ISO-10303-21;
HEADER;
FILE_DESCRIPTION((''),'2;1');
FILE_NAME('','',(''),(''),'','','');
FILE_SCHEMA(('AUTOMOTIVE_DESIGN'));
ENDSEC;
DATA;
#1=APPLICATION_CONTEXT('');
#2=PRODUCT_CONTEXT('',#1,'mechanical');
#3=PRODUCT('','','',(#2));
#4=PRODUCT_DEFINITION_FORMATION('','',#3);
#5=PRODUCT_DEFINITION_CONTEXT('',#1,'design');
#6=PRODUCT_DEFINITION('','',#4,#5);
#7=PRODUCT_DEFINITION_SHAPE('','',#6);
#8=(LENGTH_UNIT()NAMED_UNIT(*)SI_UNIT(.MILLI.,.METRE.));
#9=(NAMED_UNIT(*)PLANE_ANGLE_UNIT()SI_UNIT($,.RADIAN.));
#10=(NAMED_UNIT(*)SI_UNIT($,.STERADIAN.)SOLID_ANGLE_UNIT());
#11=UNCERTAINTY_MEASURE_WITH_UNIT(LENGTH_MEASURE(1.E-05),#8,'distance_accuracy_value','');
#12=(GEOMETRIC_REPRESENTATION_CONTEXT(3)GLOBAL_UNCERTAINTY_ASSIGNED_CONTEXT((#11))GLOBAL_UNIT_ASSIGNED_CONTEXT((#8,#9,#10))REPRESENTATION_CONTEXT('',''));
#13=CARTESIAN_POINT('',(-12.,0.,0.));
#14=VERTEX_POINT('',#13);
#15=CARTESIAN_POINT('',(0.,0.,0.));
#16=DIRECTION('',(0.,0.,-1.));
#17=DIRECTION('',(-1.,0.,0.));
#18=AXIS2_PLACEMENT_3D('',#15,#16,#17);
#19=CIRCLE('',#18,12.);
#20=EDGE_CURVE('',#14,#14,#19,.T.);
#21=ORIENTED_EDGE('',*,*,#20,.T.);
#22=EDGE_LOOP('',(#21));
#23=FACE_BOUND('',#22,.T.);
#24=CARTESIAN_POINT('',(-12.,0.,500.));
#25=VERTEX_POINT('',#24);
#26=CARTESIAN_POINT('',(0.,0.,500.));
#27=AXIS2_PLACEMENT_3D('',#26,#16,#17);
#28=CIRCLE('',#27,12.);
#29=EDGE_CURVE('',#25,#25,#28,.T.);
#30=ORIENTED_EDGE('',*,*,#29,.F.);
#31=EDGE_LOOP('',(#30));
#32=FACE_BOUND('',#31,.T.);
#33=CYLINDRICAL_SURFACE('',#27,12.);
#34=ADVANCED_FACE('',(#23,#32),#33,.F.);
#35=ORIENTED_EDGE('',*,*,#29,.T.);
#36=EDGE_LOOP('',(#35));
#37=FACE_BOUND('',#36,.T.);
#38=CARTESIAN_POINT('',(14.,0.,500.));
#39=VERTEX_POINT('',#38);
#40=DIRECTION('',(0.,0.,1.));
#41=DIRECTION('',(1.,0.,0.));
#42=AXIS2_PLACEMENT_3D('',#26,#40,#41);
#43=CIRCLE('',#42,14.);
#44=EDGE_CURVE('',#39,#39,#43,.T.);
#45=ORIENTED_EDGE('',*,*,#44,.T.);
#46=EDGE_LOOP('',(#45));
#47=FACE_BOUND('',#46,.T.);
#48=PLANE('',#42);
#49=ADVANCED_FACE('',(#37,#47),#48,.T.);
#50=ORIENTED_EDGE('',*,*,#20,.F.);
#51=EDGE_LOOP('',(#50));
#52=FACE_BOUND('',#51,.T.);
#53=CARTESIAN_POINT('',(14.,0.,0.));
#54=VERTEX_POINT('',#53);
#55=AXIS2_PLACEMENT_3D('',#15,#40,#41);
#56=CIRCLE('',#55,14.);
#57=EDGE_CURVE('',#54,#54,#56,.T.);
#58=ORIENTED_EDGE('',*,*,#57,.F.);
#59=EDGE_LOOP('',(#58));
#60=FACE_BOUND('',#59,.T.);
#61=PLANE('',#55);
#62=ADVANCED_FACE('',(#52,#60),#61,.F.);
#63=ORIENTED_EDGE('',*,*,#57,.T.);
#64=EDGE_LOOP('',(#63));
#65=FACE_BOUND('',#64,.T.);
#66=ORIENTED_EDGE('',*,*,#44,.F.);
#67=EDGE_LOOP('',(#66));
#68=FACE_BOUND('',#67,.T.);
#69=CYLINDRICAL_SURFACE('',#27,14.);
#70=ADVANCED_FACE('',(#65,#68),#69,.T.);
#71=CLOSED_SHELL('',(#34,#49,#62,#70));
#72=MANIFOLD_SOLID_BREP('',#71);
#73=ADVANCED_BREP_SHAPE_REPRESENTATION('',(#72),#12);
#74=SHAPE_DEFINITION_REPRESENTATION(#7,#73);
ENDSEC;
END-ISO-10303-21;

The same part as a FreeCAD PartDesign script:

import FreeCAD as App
import Part
import Sketcher

doc = App.newDocument("Part")
body = doc.addObject("PartDesign::Body", "Body")

# Sketch on XY plane
sketch1 = body.newObject("Sketcher::SketchObject", "Sketch")
sketch1.AttachmentSupport = (doc.getObject("XY_Plane"), [""])
sketch1.MapMode = "FlatFace"
sketch1.addGeometry(Part.Circle(App.Vector(0, 0, 0), App.Vector(0, 0, 1), 14), False)
sketch1.addConstraint(Sketcher.Constraint("Coincident", 0, 3, -1, 1))
sketch1.addConstraint(Sketcher.Constraint("Diameter", 0, 28.0))
pad1 = body.newObject("PartDesign::Pad", "Pad")
pad1.Profile = sketch1
pad1.Length = 500

# Sketch on XY plane
sketch2 = body.newObject("Sketcher::SketchObject", "Sketch001")
sketch2.AttachmentSupport = (doc.getObject("XY_Plane"), [""])
sketch2.MapMode = "FlatFace"
sketch2.addGeometry(Part.Circle(App.Vector(0, 0, 0), App.Vector(0, 0, 1), 12), False)
sketch2.addConstraint(Sketcher.Constraint("Coincident", 0, 3, -1, 1))
sketch2.addConstraint(Sketcher.Constraint("Diameter", 0, 24.0))
pocket1 = body.newObject("PartDesign::Pocket", "Pocket")
pocket1.Profile = sketch2
pocket1.Type = "ThroughAll"
pocket1.Reversed = True

doc.recompute()
